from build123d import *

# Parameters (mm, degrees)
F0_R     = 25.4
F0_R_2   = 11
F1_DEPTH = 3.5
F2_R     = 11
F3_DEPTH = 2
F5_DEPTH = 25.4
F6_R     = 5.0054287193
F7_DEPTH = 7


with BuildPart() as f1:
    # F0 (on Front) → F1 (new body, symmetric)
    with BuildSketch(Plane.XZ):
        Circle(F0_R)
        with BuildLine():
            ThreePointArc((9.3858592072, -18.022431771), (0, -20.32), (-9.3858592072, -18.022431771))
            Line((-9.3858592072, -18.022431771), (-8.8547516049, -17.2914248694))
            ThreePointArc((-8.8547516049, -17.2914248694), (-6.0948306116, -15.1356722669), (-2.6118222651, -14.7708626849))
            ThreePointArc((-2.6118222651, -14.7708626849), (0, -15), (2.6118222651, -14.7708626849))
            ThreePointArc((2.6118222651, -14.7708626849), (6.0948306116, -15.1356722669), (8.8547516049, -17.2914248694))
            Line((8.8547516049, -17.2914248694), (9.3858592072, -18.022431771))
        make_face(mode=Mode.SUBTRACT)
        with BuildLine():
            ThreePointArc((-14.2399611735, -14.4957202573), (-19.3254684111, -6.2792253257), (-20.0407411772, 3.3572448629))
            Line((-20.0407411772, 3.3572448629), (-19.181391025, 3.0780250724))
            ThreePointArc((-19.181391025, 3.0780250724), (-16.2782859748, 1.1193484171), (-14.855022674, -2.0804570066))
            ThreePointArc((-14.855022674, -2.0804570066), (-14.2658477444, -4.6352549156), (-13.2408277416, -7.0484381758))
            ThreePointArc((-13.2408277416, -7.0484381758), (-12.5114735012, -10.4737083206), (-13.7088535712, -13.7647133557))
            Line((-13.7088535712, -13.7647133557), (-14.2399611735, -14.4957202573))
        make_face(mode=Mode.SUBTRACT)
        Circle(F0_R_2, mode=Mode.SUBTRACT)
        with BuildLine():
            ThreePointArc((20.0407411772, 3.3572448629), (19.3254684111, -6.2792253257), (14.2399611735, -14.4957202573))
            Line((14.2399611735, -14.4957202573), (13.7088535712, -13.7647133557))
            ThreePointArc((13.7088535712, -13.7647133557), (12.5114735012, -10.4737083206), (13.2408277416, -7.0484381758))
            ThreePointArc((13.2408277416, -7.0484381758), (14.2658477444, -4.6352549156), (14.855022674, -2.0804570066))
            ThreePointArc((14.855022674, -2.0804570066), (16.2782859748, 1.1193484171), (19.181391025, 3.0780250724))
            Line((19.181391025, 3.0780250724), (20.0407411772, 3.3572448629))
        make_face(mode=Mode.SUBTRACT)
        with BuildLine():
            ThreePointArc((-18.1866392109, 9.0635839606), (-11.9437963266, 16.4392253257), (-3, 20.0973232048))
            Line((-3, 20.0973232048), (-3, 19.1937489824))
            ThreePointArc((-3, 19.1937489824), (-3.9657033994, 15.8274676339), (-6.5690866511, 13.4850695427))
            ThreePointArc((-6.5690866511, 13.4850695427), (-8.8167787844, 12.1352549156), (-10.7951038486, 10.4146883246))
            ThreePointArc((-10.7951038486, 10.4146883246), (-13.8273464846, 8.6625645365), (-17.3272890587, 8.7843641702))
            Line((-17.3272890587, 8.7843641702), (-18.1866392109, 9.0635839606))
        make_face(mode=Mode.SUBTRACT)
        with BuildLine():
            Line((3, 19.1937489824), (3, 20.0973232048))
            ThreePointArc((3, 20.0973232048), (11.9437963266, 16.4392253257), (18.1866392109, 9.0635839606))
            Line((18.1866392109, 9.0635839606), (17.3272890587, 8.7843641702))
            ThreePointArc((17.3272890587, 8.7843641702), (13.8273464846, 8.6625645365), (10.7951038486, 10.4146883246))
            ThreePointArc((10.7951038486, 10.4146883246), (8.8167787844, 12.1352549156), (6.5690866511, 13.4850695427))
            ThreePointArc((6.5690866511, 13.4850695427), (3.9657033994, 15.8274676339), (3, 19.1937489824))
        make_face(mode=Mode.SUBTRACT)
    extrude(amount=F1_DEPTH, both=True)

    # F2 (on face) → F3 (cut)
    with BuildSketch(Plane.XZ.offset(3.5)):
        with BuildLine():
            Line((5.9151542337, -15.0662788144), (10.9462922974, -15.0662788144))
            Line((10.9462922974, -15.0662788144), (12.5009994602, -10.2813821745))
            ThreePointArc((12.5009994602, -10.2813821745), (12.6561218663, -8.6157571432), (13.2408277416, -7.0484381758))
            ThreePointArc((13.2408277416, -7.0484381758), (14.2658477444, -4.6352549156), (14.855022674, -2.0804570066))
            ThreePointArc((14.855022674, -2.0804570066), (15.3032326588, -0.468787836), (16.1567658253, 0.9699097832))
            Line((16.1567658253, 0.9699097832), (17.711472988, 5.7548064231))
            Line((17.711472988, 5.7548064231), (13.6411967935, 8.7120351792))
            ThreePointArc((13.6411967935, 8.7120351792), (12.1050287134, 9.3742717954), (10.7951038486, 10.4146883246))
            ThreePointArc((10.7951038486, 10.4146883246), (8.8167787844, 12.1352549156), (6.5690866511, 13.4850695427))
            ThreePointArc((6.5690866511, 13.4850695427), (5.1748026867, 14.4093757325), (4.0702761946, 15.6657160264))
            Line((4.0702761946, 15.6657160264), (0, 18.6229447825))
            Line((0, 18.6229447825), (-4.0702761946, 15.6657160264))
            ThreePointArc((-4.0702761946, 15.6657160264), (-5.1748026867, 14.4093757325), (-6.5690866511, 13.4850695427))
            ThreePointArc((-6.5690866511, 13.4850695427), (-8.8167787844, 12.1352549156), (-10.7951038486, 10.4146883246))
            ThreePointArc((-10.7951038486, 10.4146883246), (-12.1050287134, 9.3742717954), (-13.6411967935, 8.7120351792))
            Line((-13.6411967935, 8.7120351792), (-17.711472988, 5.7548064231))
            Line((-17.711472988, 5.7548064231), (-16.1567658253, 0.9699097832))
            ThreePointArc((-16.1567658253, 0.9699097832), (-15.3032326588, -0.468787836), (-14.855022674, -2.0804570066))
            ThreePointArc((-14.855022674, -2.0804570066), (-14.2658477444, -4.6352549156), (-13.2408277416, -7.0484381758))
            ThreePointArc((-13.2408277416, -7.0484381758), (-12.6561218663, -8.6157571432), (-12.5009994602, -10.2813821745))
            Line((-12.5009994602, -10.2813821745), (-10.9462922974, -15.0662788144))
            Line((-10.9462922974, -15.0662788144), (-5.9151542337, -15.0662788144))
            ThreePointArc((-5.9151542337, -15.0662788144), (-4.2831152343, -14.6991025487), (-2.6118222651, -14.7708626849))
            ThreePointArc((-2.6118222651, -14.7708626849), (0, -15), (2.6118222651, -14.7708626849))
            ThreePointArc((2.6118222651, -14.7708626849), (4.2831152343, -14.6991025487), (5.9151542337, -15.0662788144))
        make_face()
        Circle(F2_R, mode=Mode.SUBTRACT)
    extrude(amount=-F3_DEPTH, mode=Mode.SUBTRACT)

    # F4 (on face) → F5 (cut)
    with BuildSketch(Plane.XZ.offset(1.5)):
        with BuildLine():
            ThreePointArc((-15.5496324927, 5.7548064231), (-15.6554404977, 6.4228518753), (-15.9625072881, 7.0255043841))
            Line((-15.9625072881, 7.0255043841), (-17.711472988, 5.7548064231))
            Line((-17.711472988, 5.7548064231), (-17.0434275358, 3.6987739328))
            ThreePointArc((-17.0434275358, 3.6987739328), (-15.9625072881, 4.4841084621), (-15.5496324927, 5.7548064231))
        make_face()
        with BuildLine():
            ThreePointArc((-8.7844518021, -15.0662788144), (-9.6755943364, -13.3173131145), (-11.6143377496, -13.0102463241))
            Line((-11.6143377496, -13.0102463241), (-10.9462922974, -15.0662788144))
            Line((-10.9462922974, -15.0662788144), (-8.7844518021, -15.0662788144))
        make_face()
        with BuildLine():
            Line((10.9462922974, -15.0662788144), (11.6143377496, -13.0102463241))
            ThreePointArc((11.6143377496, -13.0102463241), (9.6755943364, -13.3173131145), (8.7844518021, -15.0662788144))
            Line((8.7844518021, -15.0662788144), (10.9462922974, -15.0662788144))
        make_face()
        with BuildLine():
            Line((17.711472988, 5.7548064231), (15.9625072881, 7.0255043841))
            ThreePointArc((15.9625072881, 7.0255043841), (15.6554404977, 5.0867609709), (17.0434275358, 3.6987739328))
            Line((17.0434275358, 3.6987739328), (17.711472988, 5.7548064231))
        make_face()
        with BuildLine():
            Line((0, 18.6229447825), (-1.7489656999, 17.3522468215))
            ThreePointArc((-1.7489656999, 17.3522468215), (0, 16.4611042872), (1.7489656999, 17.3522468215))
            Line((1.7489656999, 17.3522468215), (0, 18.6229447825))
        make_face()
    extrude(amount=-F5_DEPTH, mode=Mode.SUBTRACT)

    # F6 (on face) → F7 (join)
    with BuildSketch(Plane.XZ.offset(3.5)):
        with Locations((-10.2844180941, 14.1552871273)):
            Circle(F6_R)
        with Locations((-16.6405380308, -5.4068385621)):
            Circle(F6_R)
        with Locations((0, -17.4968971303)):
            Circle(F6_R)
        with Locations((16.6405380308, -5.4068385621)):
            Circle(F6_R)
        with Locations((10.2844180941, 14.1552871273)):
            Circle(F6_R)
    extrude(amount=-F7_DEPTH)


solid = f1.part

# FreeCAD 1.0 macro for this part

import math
import FreeCAD as App
import Part
import Sketcher
Q = App.Units.Quantity

doc = App.newDocument("Part")
params = doc.addObject("Spreadsheet::Sheet", "Params")
for row, (alias, value) in enumerate([
    ("sketch1_diameter", "22 mm"),
    ("sketch1_radius", "15 mm"),
    ("sketch1_diameter2", "50.8 mm"),
    ("sketch1_radius2", "20.32 mm"),
    ("sketch1_radius3", "6.35 mm"),
    ("pad1_length", "7 mm"),
    ("sketch2_diameter", "22 mm"),
    ("sketch2_radius", "15 mm"),
    ("sketch2_radius2", "15 mm"),
    ("sketch2_radius3", "15 mm"),
    ("sketch2_radius4", "15 mm"),
    ("pocket1_length", "2 mm"),
    ("pocket2_length", "25.4 mm"),
    ("pad2_length", "7 mm"),
], start=1):
    params.set(f"A{row}", alias)
    params.set(f"B{row}", "=" + value)
    params.setAlias(f"B{row}", alias)

body = doc.addObject("PartDesign::Body", "Body")

# Sketch on XZ plane
sketch1 = body.newObject("Sketcher::SketchObject", "Sketch")
sketch1.AttachmentSupport = (doc.getObject("XZ_Plane"), [""])
sketch1.MapMode = "FlatFace"
sketch1.addGeometry([
    Part.Circle(App.Vector(0, 0, 0), App.Vector(0, 0, 1), 25.4),  # 0
    Part.LineSegment(App.Vector(-13.708854, -13.764713, 0), App.Vector(-14.239961, -14.49572, 0)),  # 1
    Part.ArcOfCircle(Part.Circle(App.Vector(0, 0, 0), App.Vector(0, 0, 1), 20.32), math.radians(170.490058), math.radians(225.509942)),  # 2
    Part.LineSegment(App.Vector(-20.040741, 3.357245, 0), App.Vector(-19.181391, 3.078025, 0)),  # 3
    Part.ArcOfCircle(Part.Circle(App.Vector(-21.143649, -2.961184, 0), App.Vector(0, 0, 1), 6.35), math.radians(7.972462), math.radians(72)),  # 4
    Part.ArcOfCircle(Part.Circle(App.Vector(0, 0, 0), App.Vector(0, 0, 1), 15), math.radians(-172.027538), math.radians(-151.972462)),  # 5
    Part.ArcOfCircle(Part.Circle(App.Vector(-18.846111, -10.032277, 0), App.Vector(0, 0, 1), 6.35), math.radians(-36), math.radians(28.027538)),  # 6
    Part.LineSegment(App.Vector(8.854752, -17.291425, 0), App.Vector(9.385859, -18.022432, 0)),  # 7
    Part.ArcOfCircle(Part.Circle(App.Vector(0, 0, 0), App.Vector(0, 0, 1), 20.32), math.radians(-117.509942), math.radians(-62.490058)),  # 8
    Part.LineSegment(App.Vector(-9.385859, -18.022432, 0), App.Vector(-8.854752, -17.291425, 0)),  # 9
    Part.ArcOfCircle(Part.Circle(App.Vector(-3.717494, -21.023861, 0), App.Vector(0, 0, 1), 6.35), math.radians(79.972462), math.radians(144)),  # 10
    Part.ArcOfCircle(Part.Circle(App.Vector(0, 0, 0), App.Vector(0, 0, 1), 15), math.radians(-100.027538), math.radians(-79.972462)),  # 11
    Part.ArcOfCircle(Part.Circle(App.Vector(3.717494, -21.023861, 0), App.Vector(0, 0, 1), 6.35), math.radians(36), math.radians(100.027538)),  # 12
    Part.LineSegment(App.Vector(19.181391, 3.078025, 0), App.Vector(20.040741, 3.357245, 0)),  # 13
    Part.ArcOfCircle(Part.Circle(App.Vector(0, 0, 0), App.Vector(0, 0, 1), 20.32), math.radians(-45.509942), math.radians(9.509942)),  # 14
    Part.LineSegment(App.Vector(14.239961, -14.49572, 0), App.Vector(13.708854, -13.764713, 0)),  # 15
    Part.ArcOfCircle(Part.Circle(App.Vector(18.846111, -10.032277, 0), App.Vector(0, 0, 1), 6.35), math.radians(151.972462), math.radians(216)),  # 16
    Part.ArcOfCircle(Part.Circle(App.Vector(0, 0, 0), App.Vector(0, 0, 1), 15), math.radians(-28.027538), math.radians(-7.972462)),  # 17
    Part.ArcOfCircle(Part.Circle(App.Vector(21.143649, -2.961184, 0), App.Vector(0, 0, 1), 6.35), math.radians(108), math.radians(172.027538)),  # 18
    Part.LineSegment(App.Vector(-17.327289, 8.784364, 0), App.Vector(-18.186639, 9.063584, 0)),  # 19
    Part.ArcOfCircle(Part.Circle(App.Vector(0, 0, 0), App.Vector(0, 0, 1), 20.32), math.radians(98.490058), math.radians(153.509942)),  # 20
    Part.LineSegment(App.Vector(-3, 20.097323, 0), App.Vector(-3, 19.193749, 0)),  # 21
    Part.ArcOfCircle(Part.Circle(App.Vector(-9.35, 19.193749, 0), App.Vector(0, 0, 1), 6.35), math.radians(-64.027538), math.radians(0)),  # 22
    Part.ArcOfCircle(Part.Circle(App.Vector(0, 0, 0), App.Vector(0, 0, 1), 15), math.radians(115.972462), math.radians(136.027538)),  # 23
    Part.ArcOfCircle(Part.Circle(App.Vector(-15.365031, 14.823573, 0), App.Vector(0, 0, 1), 6.35), math.radians(-108), math.radians(-43.972462)),  # 24
    Part.Circle(App.Vector(0, 0, 0), App.Vector(0, 0, 1), 11),  # 25
    Part.ArcOfCircle(Part.Circle(App.Vector(9.35, 19.193749, 0), App.Vector(0, 0, 1), 6.35), math.radians(180), math.radians(244.027538)),  # 26
    Part.LineSegment(App.Vector(3, 19.193749, 0), App.Vector(3, 20.097323, 0)),  # 27
    Part.ArcOfCircle(Part.Circle(App.Vector(0, 0, 0), App.Vector(0, 0, 1), 20.32), math.radians(26.490058), math.radians(81.509942)),  # 28
    Part.LineSegment(App.Vector(18.186639, 9.063584, 0), App.Vector(17.327289, 8.784364, 0)),  # 29
    Part.ArcOfCircle(Part.Circle(App.Vector(15.365031, 14.823573, 0), App.Vector(0, 0, 1), 6.35), math.radians(-136.027538), math.radians(-72)),  # 30
    Part.ArcOfCircle(Part.Circle(App.Vector(0, 0, 0), App.Vector(0, 0, 1), 15), math.radians(43.972462), math.radians(64.027538)),  # 31
], False)
sketch1.addConstraint([
    Sketcher.Constraint("Coincident", 1, 2, 2, 2),
    Sketcher.Constraint("Coincident", 2, 1, 3, 1),
    Sketcher.Constraint("Tangent", 3, 2, 4, 2),
    Sketcher.Constraint("Tangent", 4, 1, 5, 1),
    Sketcher.Constraint("Tangent", 5, 2, 6, 2),
    Sketcher.Constraint("Tangent", 6, 1, 1, 1),
    Sketcher.Constraint("Coincident", 7, 2, 8, 2),
    Sketcher.Constraint("Coincident", 8, 1, 9, 1),
    Sketcher.Constraint("Tangent", 9, 2, 10, 2),
    Sketcher.Constraint("Tangent", 10, 1, 11, 1),
    Sketcher.Constraint("Tangent", 11, 2, 12, 2),
    Sketcher.Constraint("Tangent", 12, 1, 7, 1),
    Sketcher.Constraint("Coincident", 13, 2, 14, 2),
    Sketcher.Constraint("Coincident", 14, 1, 15, 1),
    Sketcher.Constraint("Tangent", 15, 2, 16, 2),
    Sketcher.Constraint("Tangent", 16, 1, 17, 1),
    Sketcher.Constraint("Tangent", 17, 2, 18, 2),
    Sketcher.Constraint("Tangent", 18, 1, 13, 1),
    Sketcher.Constraint("Coincident", 19, 2, 20, 2),
    Sketcher.Constraint("Coincident", 20, 1, 21, 1),
    Sketcher.Constraint("Tangent", 21, 2, 22, 2),
    Sketcher.Constraint("Tangent", 22, 1, 23, 1),
    Sketcher.Constraint("Tangent", 23, 2, 24, 2),
    Sketcher.Constraint("Tangent", 24, 1, 19, 1),
    Sketcher.Constraint("Tangent", 26, 1, 27, 1),
    Sketcher.Constraint("Coincident", 27, 2, 28, 2),
    Sketcher.Constraint("Coincident", 28, 1, 29, 1),
    Sketcher.Constraint("Tangent", 29, 2, 30, 2),
    Sketcher.Constraint("Tangent", 30, 1, 31, 1),
    Sketcher.Constraint("Tangent", 31, 2, 26, 2),
    Sketcher.Constraint("Vertical", 21),
    Sketcher.Constraint("Vertical", 27),
    Sketcher.Constraint("Coincident", 0, 3, -1, 1),
    Sketcher.Constraint("Coincident", 2, 3, -1, 1),
    Sketcher.Constraint("Coincident", 5, 3, -1, 1),
    Sketcher.Constraint("Coincident", 8, 3, -1, 1),
    Sketcher.Constraint("Coincident", 11, 3, -1, 1),
    Sketcher.Constraint("Coincident", 14, 3, -1, 1),
    Sketcher.Constraint("Coincident", 17, 3, -1, 1),
    Sketcher.Constraint("Coincident", 20, 3, -1, 1),
    Sketcher.Constraint("Coincident", 23, 3, -1, 1),
    Sketcher.Constraint("Coincident", 25, 3, -1, 1),
    Sketcher.Constraint("Coincident", 28, 3, -1, 1),
    Sketcher.Constraint("Coincident", 31, 3, -1, 1),
    Sketcher.Constraint("Equal", 4, 6),
    Sketcher.Constraint("Equal", 2, 8),
    Sketcher.Constraint("Equal", 6, 10),
    Sketcher.Constraint("Equal", 5, 11),
    Sketcher.Constraint("Equal", 10, 12),
    Sketcher.Constraint("Equal", 8, 14),
    Sketcher.Constraint("Equal", 12, 16),
    Sketcher.Constraint("Equal", 11, 17),
    Sketcher.Constraint("Equal", 16, 18),
    Sketcher.Constraint("Equal", 14, 20),
    Sketcher.Constraint("Equal", 18, 22),
    Sketcher.Constraint("Equal", 17, 23),
    Sketcher.Constraint("Equal", 22, 24),
    Sketcher.Constraint("Equal", 24, 26),
    Sketcher.Constraint("Equal", 20, 28),
    Sketcher.Constraint("Equal", 26, 30),
    Sketcher.Constraint("Equal", 23, 31),
    Sketcher.Constraint("Symmetric", 9, 2, 12, 1, -2),
    Sketcher.Constraint("Symmetric", 6, 1, 15, 2, -2),
    Sketcher.Constraint("Symmetric", 3, 2, 18, 1, -2),
    Sketcher.Constraint("Symmetric", 24, 1, 29, 2, -2),
    Sketcher.Constraint("Parallel", 1, 9),
    Sketcher.Constraint("Parallel", 3, 19),
    Sketcher.Constraint("Horizontal", 22, 3, 26, 3),
    Sketcher.Constraint("Equal", 1, 3),
    Sketcher.Constraint("Equal", 3, 7),
    Sketcher.Constraint("Equal", 15, 19),
    Sketcher.Constraint("Diameter", 25, 22.0),
    Sketcher.Constraint("Radius", 5, 15.0),
    Sketcher.Constraint("Diameter", 0, 50.8),
    Sketcher.Constraint("Angle", 1, Q("-126 deg")),
    Sketcher.Constraint("Angle", 3, Q("-18 deg")),
    Sketcher.Constraint("Radius", 2, 20.32),
    Sketcher.Constraint("Radius", 4, 6.35),
    Sketcher.Constraint("DistanceX", 20, 1, -1, 1, 3.0),
    Sketcher.Constraint("DistanceY", 10, 3, 10, 1, 6.252999),
])
sketch1.setExpression("Constraints[71]", "Params.sketch1_diameter")
sketch1.setExpression("Constraints[72]", "Params.sketch1_radius")
sketch1.setExpression("Constraints[73]", "Params.sketch1_diameter2")
sketch1.setExpression("Constraints[76]", "Params.sketch1_radius2")
sketch1.setExpression("Constraints[77]", "Params.sketch1_radius3")
pad1 = body.newObject("PartDesign::Pad", "Pad")
pad1.Profile = sketch1
pad1.setExpression("Length", "Params.pad1_length")
pad1.Midplane = True

# Sketch on XZ plane
sketch2 = body.newObject("Sketcher::SketchObject", "Sketch001")
sketch2.AttachmentSupport = (doc.getObject("XZ_Plane"), [""])
sketch2.MapMode = "FlatFace"
sketch2.AttachmentOffset = App.Placement(App.Vector(0, 0, 3.5), App.Rotation())
sketch2.addGeometry([
    Part.LineSegment(App.Vector(5.915154, -15.066279, 0), App.Vector(10.946292, -15.066279, 0)),  # 0
    Part.LineSegment(App.Vector(10.946292, -15.066279, 0), App.Vector(12.500999, -10.281382, 0)),  # 1
    Part.ArcOfCircle(Part.Circle(App.Vector(18.846111, -10.032277, 0), App.Vector(0, 0, 1), 6.35), math.radians(151.972462), math.radians(182.248242)),  # 2
    Part.ArcOfCircle(Part.Circle(App.Vector(0, 0, 0), App.Vector(0, 0, 1), 15), math.radians(-28.027538), math.radians(-7.972462)),  # 3
    Part.ArcOfCircle(Part.Circle(App.Vector(21.143649, -2.961184, 0), App.Vector(0, 0, 1), 6.35), math.radians(141.751758), math.radians(172.027538)),  # 4
    Part.LineSegment(App.Vector(16.156766, 0.96991, 0), App.Vector(17.711473, 5.754806, 0)),  # 5
    Part.LineSegment(App.Vector(17.711473, 5.754806, 0), App.Vector(13.641197, 8.712035, 0)),  # 6
    Part.ArcOfCircle(Part.Circle(App.Vector(15.365031, 14.823573, 0), App.Vector(0, 0, 1), 6.35), math.radians(-136.027538), math.radians(-105.751758)),  # 7
    Part.ArcOfCircle(Part.Circle(App.Vector(0, 0, 0), App.Vector(0, 0, 1), 15), math.radians(43.972462), math.radians(64.027538)),  # 8
    Part.ArcOfCircle(Part.Circle(App.Vector(9.35, 19.193749, 0), App.Vector(0, 0, 1), 6.35), math.radians(-146.248242), math.radians(-115.972462)),  # 9
    Part.LineSegment(App.Vector(4.070276, 15.665716, 0), App.Vector(0, 18.622945, 0)),  # 10
    Part.LineSegment(App.Vector(0, 18.622945, 0), App.Vector(-4.070276, 15.665716, 0)),  # 11
    Part.ArcOfCircle(Part.Circle(App.Vector(-9.35, 19.193749, 0), App.Vector(0, 0, 1), 6.35), math.radians(-64.027538), math.radians(-33.751758)),  # 12
    Part.ArcOfCircle(Part.Circle(App.Vector(0, 0, 0), App.Vector(0, 0, 1), 15), math.radians(115.972462), math.radians(136.027538)),  # 13
    Part.ArcOfCircle(Part.Circle(App.Vector(-15.365031, 14.823573, 0), App.Vector(0, 0, 1), 6.35), math.radians(-74.248242), math.radians(-43.972462)),  # 14
    Part.LineSegment(App.Vector(-13.641197, 8.712035, 0), App.Vector(-17.711473, 5.754806, 0)),  # 15
    Part.LineSegment(App.Vector(-17.711473, 5.754806, 0), App.Vector(-16.156766, 0.96991, 0)),  # 16
    Part.ArcOfCircle(Part.Circle(App.Vector(-21.143649, -2.961184, 0), App.Vector(0, 0, 1), 6.35), math.radians(7.972462), math.radians(38.248242)),  # 17
    Part.ArcOfCircle(Part.Circle(App.Vector(0, 0, 0), App.Vector(0, 0, 1), 15), math.radians(-172.027538), math.radians(-151.972462)),  # 18
    Part.ArcOfCircle(Part.Circle(App.Vector(-18.846111, -10.032277, 0), App.Vector(0, 0, 1), 6.35), math.radians(-2.248242), math.radians(28.027538)),  # 19
    Part.LineSegment(App.Vector(-12.500999, -10.281382, 0), App.Vector(-10.946292, -15.066279, 0)),  # 20
    Part.LineSegment(App.Vector(-10.946292, -15.066279, 0), App.Vector(-5.915154, -15.066279, 0)),  # 21
    Part.ArcOfCircle(Part.Circle(App.Vector(-3.717494, -21.023861, 0), App.Vector(0, 0, 1), 6.35), math.radians(79.972462), math.radians(110.248242)),  # 22
    Part.ArcOfCircle(Part.Circle(App.Vector(0, 0, 0), App.Vector(0, 0, 1), 15), math.radians(-100.027538), math.radians(-79.972462)),  # 23
    Part.ArcOfCircle(Part.Circle(App.Vector(3.717494, -21.023861, 0), App.Vector(0, 0, 1), 6.35), math.radians(69.751758), math.radians(100.027538)),  # 24
    Part.Circle(App.Vector(0, 0, 0), App.Vector(0, 0, 1), 11),  # 25
], False)
sketch2.addConstraint([
    Sketcher.Constraint("Coincident", 0, 2, 1, 1),
    Sketcher.Constraint("Coincident", 1, 2, 2, 2),
    Sketcher.Constraint("Coincident", 2, 1, 3, 1),
    Sketcher.Constraint("Coincident", 3, 2, 4, 2),
    Sketcher.Constraint("Coincident", 4, 1, 5, 1),
    Sketcher.Constraint("Coincident", 5, 2, 6, 1),
    Sketcher.Constraint("Coincident", 6, 2, 7, 2),
    Sketcher.Constraint("Coincident", 7, 1, 8, 1),
    Sketcher.Constraint("Coincident", 8, 2, 9, 2),
    Sketcher.Constraint("Coincident", 9, 1, 10, 1),
    Sketcher.Constraint("Coincident", 10, 2, 11, 1),
    Sketcher.Constraint("Coincident", 11, 2, 12, 2),
    Sketcher.Constraint("Coincident", 12, 1, 13, 1),
    Sketcher.Constraint("Coincident", 13, 2, 14, 2),
    Sketcher.Constraint("Coincident", 14, 1, 15, 1),
    Sketcher.Constraint("Coincident", 15, 2, 16, 1),
    Sketcher.Constraint("Coincident", 16, 2, 17, 2),
    Sketcher.Constraint("Coincident", 17, 1, 18, 1),
    Sketcher.Constraint("Coincident", 18, 2, 19, 2),
    Sketcher.Constraint("Coincident", 19, 1, 20, 1),
    Sketcher.Constraint("Coincident", 20, 2, 21, 1),
    Sketcher.Constraint("Coincident", 21, 2, 22, 2),
    Sketcher.Constraint("Coincident", 22, 1, 23, 1),
    Sketcher.Constraint("Coincident", 23, 2, 24, 2),
    Sketcher.Constraint("Coincident", 24, 1, 0, 1),
    Sketcher.Constraint("Horizontal", 0),
    Sketcher.Constraint("Horizontal", 21),
    Sketcher.Constraint("Coincident", 3, 3, -1, 1),
    Sketcher.Constraint("Coincident", 8, 3, -1, 1),
    Sketcher.Constraint("Coincident", 13, 3, -1, 1),
    Sketcher.Constraint("Coincident", 18, 3, -1, 1),
    Sketcher.Constraint("Coincident", 23, 3, -1, 1),
    Sketcher.Constraint("Coincident", 25, 3, -1, 1),
    Sketcher.Constraint("PointOnObject", 10, 2, -2),
    Sketcher.Constraint("Diameter", 25, 22.0),
    Sketcher.Constraint("Radius", 3, 15.0),
    Sketcher.Constraint("Radius", 8, 15.0),
    Sketcher.Constraint("Radius", 13, 15.0),
    Sketcher.Constraint("Radius", 18, 15.0),
    Sketcher.Constraint("Radius", 23, 15.0),
    Sketcher.Constraint("Radius", 2, 6.35),
    Sketcher.Constraint("Radius", 4, 6.35),
    Sketcher.Constraint("Radius", 7, 6.35),
    Sketcher.Constraint("Radius", 9, 6.35),
    Sketcher.Constraint("Radius", 12, 6.35),
    Sketcher.Constraint("Radius", 14, 6.35),
    Sketcher.Constraint("Radius", 17, 6.35),
    Sketcher.Constraint("Radius", 19, 6.35),
    Sketcher.Constraint("Radius", 22, 6.35),
    Sketcher.Constraint("Radius", 24, 6.35),
    Sketcher.Constraint("DistanceX", 12, 3, 9, 3, 18.7),
    Sketcher.Constraint("DistanceX", -1, 1, 9, 3, 9.35),
    Sketcher.Constraint("DistanceX", -1, 1, 1, 2, 12.500999),
    Sketcher.Constraint("DistanceX", 19, 1, -1, 1, 12.500999),
    Sketcher.Constraint("DistanceY", 0, 2, 2, 3, 5.034002),
    Sketcher.Constraint("DistanceY", 20, 2, 19, 3, 5.034002),
    Sketcher.Constraint("DistanceY", 22, 3, 22, 1, 6.252999),
    Sketcher.Constraint("DistanceY", 24, 3, 22, 1, 6.252999),
    Sketcher.Constraint("DistanceY", 24, 3, 23, 2, 6.252999),
    Sketcher.Constraint("DistanceX", 0, 1, 0, 2, 5.031138),
    Sketcher.Constraint("DistanceX", 21, 1, 21, 2, 5.031138),
    Sketcher.Constraint("DistanceX", 24, 3, 0, 2, 7.228799),
    Sketcher.Constraint("DistanceY", 1, 2, 4, 3, 7.320198),
    Sketcher.Constraint("DistanceY", 19, 1, 17, 3, 7.320198),
    Sketcher.Constraint("DistanceX", 20, 2, 22, 3, 7.228799),
    Sketcher.Constraint("Distance", 1, 5.031138),
    Sketcher.Constraint("Distance", 5, 5.031138),
    Sketcher.Constraint("Distance", 6, 5.031138),
    Sketcher.Constraint("Distance", 10, 5.031138),
    Sketcher.Constraint("Distance", 11, 5.031138),
    Sketcher.Constraint("Distance", 15, 5.031138),
    Sketcher.Constraint("Distance", 16, 5.031138),
    Sketcher.Constraint("DistanceX", -1, 1, 7, 3, 15.365031),
    Sketcher.Constraint("DistanceX", 14, 3, -1, 1, 15.365031),
    Sketcher.Constraint("DistanceY", 2, 1, -1, 1, 7.048438),
    Sketcher.Constraint("DistanceY", -1, 1, 4, 1, 0.96991),
    Sketcher.Constraint("DistanceY", -1, 1, 7, 1, 10.414688),
    Sketcher.Constraint("DistanceY", -1, 1, 8, 2, 13.48507),
    Sketcher.Constraint("DistanceY", -1, 1, 12, 1, 13.48507),
    Sketcher.Constraint("DistanceY", -1, 1, 13, 2, 10.414688),
    Sketcher.Constraint("DistanceY", -1, 1, 16, 2, 0.96991),
    Sketcher.Constraint("DistanceY", 18, 2, -1, 1, 7.048438),
    Sketcher.Constraint("DistanceY", 2, 1, 3, 2, 4.967981),
    Sketcher.Constraint("DistanceX", 3, 2, 5, 2, 2.85645),
    Sketcher.Constraint("DistanceX", 9, 1, 8, 2, 2.49881),
    Sketcher.Constraint("DistanceX", 14, 1, 12, 1, 7.07211),
    Sketcher.Constraint("DistanceX", 15, 2, 17, 1, 2.85645),
])
sketch2.setExpression("Constraints[34]", "Params.sketch2_diameter")
sketch2.setExpression("Constraints[35]", "Params.sketch2_radius")
sketch2.setExpression("Constraints[36]", "Params.sketch2_radius2")
sketch2.setExpression("Constraints[37]", "Params.sketch2_radius3")
sketch2.setExpression("Constraints[38]", "Params.sketch2_radius4")
pocket1 = body.newObject("PartDesign::Pocket", "Pocket")
pocket1.Profile = sketch2
pocket1.setExpression("Length", "Params.pocket1_length")

# Sketch on XZ plane
sketch3 = body.newObject("Sketcher::SketchObject", "Sketch002")
sketch3.AttachmentSupport = (doc.getObject("XZ_Plane"), [""])
sketch3.MapMode = "FlatFace"
sketch3.AttachmentOffset = App.Placement(App.Vector(0, 0, 1.5), App.Rotation())
sketch3.addGeometry([
    Part.ArcOfCircle(Part.Circle(App.Vector(-17.711473, 5.754806, 0), App.Vector(0, 0, 1), 2.16184), math.radians(0), math.radians(36)),  # 0
    Part.LineSegment(App.Vector(-15.962507, 7.025504, 0), App.Vector(-17.711473, 5.754806, 0)),  # 1
    Part.LineSegment(App.Vector(-17.711473, 5.754806, 0), App.Vector(-17.043428, 3.698774, 0)),  # 2
    Part.ArcOfCircle(Part.Circle(App.Vector(-17.711473, 5.754806, 0), App.Vector(0, 0, 1), 2.16184), math.radians(-72), math.radians(0)),  # 3
    Part.ArcOfCircle(Part.Circle(App.Vector(-10.946292, -15.066279, 0), App.Vector(0, 0, 1), 2.16184), math.radians(0), math.radians(108)),  # 4
    Part.LineSegment(App.Vector(-11.614338, -13.010246, 0), App.Vector(-10.946292, -15.066279, 0)),  # 5
    Part.LineSegment(App.Vector(-10.946292, -15.066279, 0), App.Vector(-8.784452, -15.066279, 0)),  # 6
    Part.LineSegment(App.Vector(10.946292, -15.066279, 0), App.Vector(11.614338, -13.010246, 0)),  # 7
    Part.ArcOfCircle(Part.Circle(App.Vector(10.946292, -15.066279, 0), App.Vector(0, 0, 1), 2.16184), math.radians(72), math.radians(180)),  # 8
    Part.LineSegment(App.Vector(8.784452, -15.066279, 0), App.Vector(10.946292, -15.066279, 0)),  # 9
    Part.LineSegment(App.Vector(17.711473, 5.754806, 0), App.Vector(15.962507, 7.025504, 0)),  # 10
    Part.ArcOfCircle(Part.Circle(App.Vector(17.711473, 5.754806, 0), App.Vector(0, 0, 1), 2.16184), math.radians(144), math.radians(252)),  # 11
    Part.LineSegment(App.Vector(17.043428, 3.698774, 0), App.Vector(17.711473, 5.754806, 0)),  # 12
    Part.LineSegment(App.Vector(0, 18.622945, 0), App.Vector(-1.748966, 17.352247, 0)),  # 13
    Part.ArcOfCircle(Part.Circle(App.Vector(0, 18.622945, 0), App.Vector(0, 0, 1), 2.16184), math.radians(-144), math.radians(-36)),  # 14
    Part.LineSegment(App.Vector(1.748966, 17.352247, 0), App.Vector(0, 18.622945, 0)),  # 15
], False)
sketch3.addConstraint([
    Sketcher.Constraint("Coincident", 0, 2, 1, 1),
    Sketcher.Constraint("Coincident", 1, 2, 2, 1),
    Sketcher.Constraint("Coincident", 2, 2, 3, 1),
    Sketcher.Constraint("Tangent", 3, 2, 0, 1),
    Sketcher.Constraint("Coincident", 4, 2, 5, 1),
    Sketcher.Constraint("Coincident", 5, 2, 6, 1),
    Sketcher.Constraint("Coincident", 6, 2, 4, 1),
    Sketcher.Constraint("Coincident", 7, 2, 8, 1),
    Sketcher.Constraint("Coincident", 8, 2, 9, 1),
    Sketcher.Constraint("Coincident", 9, 2, 7, 1),
    Sketcher.Constraint("Coincident", 10, 2, 11, 1),
    Sketcher.Constraint("Coincident", 11, 2, 12, 1),
    Sketcher.Constraint("Coincident", 12, 2, 10, 1),
    Sketcher.Constraint("Coincident", 13, 2, 14, 1),
    Sketcher.Constraint("Coincident", 14, 2, 15, 1),
    Sketcher.Constraint("Coincident", 15, 2, 13, 1),
    Sketcher.Constraint("Horizontal", 6),
    Sketcher.Constraint("Horizontal", 9),
    Sketcher.Constraint("Coincident", 1, 2, 0, 3),
    Sketcher.Constraint("Coincident", 5, 2, 4, 3),
    Sketcher.Constraint("Coincident", 9, 2, 8, 3),
    Sketcher.Constraint("Coincident", 12, 2, 11, 3),
    Sketcher.Constraint("Coincident", 15, 2, 14, 3),
    Sketcher.Constraint("Equal", 0, 3),
    Sketcher.Constraint("Equal", 3, 4),
    Sketcher.Constraint("Equal", 4, 8),
    Sketcher.Constraint("Equal", 8, 11),
    Sketcher.Constraint("Equal", 11, 14),
    Sketcher.Constraint("Symmetric", 4, 3, 8, 3, -2),
    Sketcher.Constraint("Symmetric", 0, 3, 11, 3, -2),
    Sketcher.Constraint("Symmetric", 13, 2, 14, 2, -2),
    Sketcher.Constraint("Parallel", 2, 5),
    Sketcher.Constraint("Parallel", 7, 12),
    Sketcher.Constraint("Parallel", 1, 13),
    Sketcher.Constraint("Parallel", 10, 15),
    Sketcher.Constraint("Horizontal", 1, 2, 3, 2),
    Sketcher.Constraint("Horizontal", 4, 2, 7, 2),
    Sketcher.Constraint("Angle", 1, Q("-144 deg")),
    Sketcher.Constraint("Angle", 2, Q("-72 deg")),
    Sketcher.Constraint("Radius", 0, 2.16184),
    Sketcher.Constraint("DistanceY", 4, 3, -1, 1, 15.066279),
    Sketcher.Constraint("DistanceX", 6, 2, -1, 1, 8.784452),
    Sketcher.Constraint("DistanceX", 0, 3, 4, 3, 6.765181),
    Sketcher.Constraint("DistanceY", 0, 3, 14, 3, 12.868138),
    Sketcher.Constraint("DistanceY", 4, 2, 2, 2, 16.70902),
])
pocket2 = body.newObject("PartDesign::Pocket", "Pocket001")
pocket2.Profile = sketch3
pocket2.setExpression("Length", "Params.pocket2_length")

# Sketch on XZ plane
sketch4 = body.newObject("Sketcher::SketchObject", "Sketch003")
sketch4.AttachmentSupport = (doc.getObject("XZ_Plane"), [""])
sketch4.MapMode = "FlatFace"
sketch4.AttachmentOffset = App.Placement(App.Vector(0, 0, 3.5), App.Rotation())
sketch4.addGeometry([
    Part.Circle(App.Vector(-10.284418, 14.155287, 0), App.Vector(0, 0, 1), 5.005429),  # 0
    Part.Circle(App.Vector(-16.640538, -5.406839, 0), App.Vector(0, 0, 1), 5.005429),  # 1
    Part.Circle(App.Vector(0, -17.496897, 0), App.Vector(0, 0, 1), 5.005429),  # 2
    Part.Circle(App.Vector(16.640538, -5.406839, 0), App.Vector(0, 0, 1), 5.005429),  # 3
    Part.Circle(App.Vector(10.284418, 14.155287, 0), App.Vector(0, 0, 1), 5.005429),  # 4
], False)
sketch4.addConstraint([
    Sketcher.Constraint("Equal", 0, 1),
    Sketcher.Constraint("Equal", 1, 2),
    Sketcher.Constraint("Equal", 2, 3),
    Sketcher.Constraint("Equal", 3, 4),
    Sketcher.Constraint("Symmetric", 1, 3, 3, 3, -2),
    Sketcher.Constraint("Symmetric", 0, 3, 4, 3, -2),
    Sketcher.Constraint("PointOnObject", 2, 3, -2),
    Sketcher.Constraint("Diameter", 0, 10.010857),
    Sketcher.Constraint("DistanceX", 0, 3, -1, 1, 10.284418),
    Sketcher.Constraint("DistanceX", 1, 3, -1, 1, 16.640538),
    Sketcher.Constraint("DistanceY", 1, 3, -1, 1, 5.406839),
    Sketcher.Constraint("DistanceY", 2, 3, 1, 3, 12.090059),
    Sketcher.Constraint("DistanceY", -1, 1, 0, 3, 14.155287),
])
pad2 = body.newObject("PartDesign::Pad", "Pad001")
pad2.Profile = sketch4
pad2.setExpression("Length", "Params.pad2_length")
pad2.Reversed = True

doc.recompute()
